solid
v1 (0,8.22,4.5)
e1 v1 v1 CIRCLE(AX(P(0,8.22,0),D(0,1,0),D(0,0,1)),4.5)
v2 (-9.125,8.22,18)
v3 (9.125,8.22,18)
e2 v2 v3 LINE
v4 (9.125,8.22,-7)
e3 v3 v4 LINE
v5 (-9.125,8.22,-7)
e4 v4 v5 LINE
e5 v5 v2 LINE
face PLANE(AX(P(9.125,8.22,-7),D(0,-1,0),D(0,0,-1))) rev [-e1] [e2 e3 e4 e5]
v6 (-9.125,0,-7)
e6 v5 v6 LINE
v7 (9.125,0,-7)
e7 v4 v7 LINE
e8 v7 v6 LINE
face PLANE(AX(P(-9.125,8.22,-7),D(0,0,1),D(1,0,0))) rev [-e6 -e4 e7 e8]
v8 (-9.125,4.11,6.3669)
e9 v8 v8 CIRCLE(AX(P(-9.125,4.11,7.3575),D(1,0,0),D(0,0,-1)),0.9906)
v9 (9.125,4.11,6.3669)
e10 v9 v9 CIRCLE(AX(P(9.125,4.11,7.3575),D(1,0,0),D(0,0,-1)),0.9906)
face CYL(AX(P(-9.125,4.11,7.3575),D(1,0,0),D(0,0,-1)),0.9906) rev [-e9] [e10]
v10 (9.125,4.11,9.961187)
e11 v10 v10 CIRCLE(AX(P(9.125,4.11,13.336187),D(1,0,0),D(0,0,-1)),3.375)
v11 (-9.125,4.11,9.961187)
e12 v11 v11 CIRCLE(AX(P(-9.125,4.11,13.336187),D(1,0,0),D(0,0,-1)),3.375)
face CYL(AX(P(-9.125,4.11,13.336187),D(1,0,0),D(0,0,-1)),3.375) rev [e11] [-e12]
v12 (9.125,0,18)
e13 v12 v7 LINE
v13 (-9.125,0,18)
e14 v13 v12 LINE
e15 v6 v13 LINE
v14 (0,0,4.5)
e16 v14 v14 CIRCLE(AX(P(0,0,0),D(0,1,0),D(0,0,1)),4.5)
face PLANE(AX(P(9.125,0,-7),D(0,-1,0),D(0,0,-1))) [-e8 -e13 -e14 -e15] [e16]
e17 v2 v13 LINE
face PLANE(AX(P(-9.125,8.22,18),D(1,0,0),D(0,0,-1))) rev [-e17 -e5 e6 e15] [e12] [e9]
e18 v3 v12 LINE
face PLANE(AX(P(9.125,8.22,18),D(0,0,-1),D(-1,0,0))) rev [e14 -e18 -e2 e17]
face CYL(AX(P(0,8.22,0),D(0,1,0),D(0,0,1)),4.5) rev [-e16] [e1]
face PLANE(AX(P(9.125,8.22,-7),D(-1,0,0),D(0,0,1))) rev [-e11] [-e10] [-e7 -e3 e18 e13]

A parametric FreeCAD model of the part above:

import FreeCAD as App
import Part
import Sketcher
Q = App.Units.Quantity


def add_polygon(sketch, points):
    """Adds a closed chain of lines whose ends are joined by coincident constraints."""
    first, n = sketch.GeometryCount, len(points)
    for a, b in zip(points, points[1:] + points[:1]):
        sketch.addGeometry(Part.LineSegment(App.Vector(*a, 0), App.Vector(*b, 0)), False)
    for i in range(n):
        sketch.addConstraint(Sketcher.Constraint("Coincident", first + i, 2, first + (i + 1) % n, 1))

doc = App.newDocument("Part")
params = doc.addObject("Spreadsheet::Sheet", "Params")
for row, (alias, value) in enumerate([
    ("sketch1_height", "25 mm"),
    ("sketch1_width", "18.25 mm"),
    ("pad1_length", "8.22 mm"),
    ("sketch2_diameter", "9 mm"),
    ("hole_diameter", "9 mm"),
    ("sketch3_diameter", "6.75 mm"),
], start=1):
    params.set(f"A{row}", alias)
    params.set(f"B{row}", "=" + value)
    params.setAlias(f"B{row}", alias)

body = doc.addObject("PartDesign::Body", "Body")

# Sketch on XZ plane
sketch1 = body.newObject("Sketcher::SketchObject", "Sketch")
sketch1.AttachmentSupport = (doc.getObject("XZ_Plane"), [""])
sketch1.MapMode = "FlatFace"
add_polygon(sketch1, [(-9, -7), (-9, 18), (9, 18), (9, -7)])  # lines 0-3
sketch1.addConstraint([
    Sketcher.Constraint("Vertical", 0),
    Sketcher.Constraint("Horizontal", 1),
    Sketcher.Constraint("Vertical", 2),
    Sketcher.Constraint("Horizontal", 3),
    Sketcher.Constraint("DistanceY", 0, 1, 0, 2, Q("25 mm")),
    Sketcher.Constraint("DistanceY", -1, 1, 0, 2, Q("18 mm")),
    Sketcher.Constraint("DistanceX", 1, 1, 1, 2, Q("18.25 mm")),
    Sketcher.Constraint("DistanceX", 0, 2, -1, 1, Q("9.125 mm")),
])
sketch1.setExpression("Constraints[8]", "Params.sketch1_height")
sketch1.setExpression("Constraints[10]", "Params.sketch1_width")
pad1 = body.newObject("PartDesign::Pad", "Pad")
pad1.Profile = sketch1
pad1.setExpression("Length", "Params.pad1_length")
pad1.Reversed = True

# Sketch on XZ plane
sketch2 = body.newObject("Sketcher::SketchObject", "Sketch001")
sketch2.AttachmentSupport = (doc.getObject("XZ_Plane"), [""])
sketch2.MapMode = "FlatFace"
sketch2.AttachmentOffset = App.Placement(App.Vector(0, 0, -8.22), App.Rotation())
sketch2.addGeometry(Part.Circle(App.Vector(0, 0, 0), App.Vector(0, 0, 1), 4.5), False)
sketch2.addConstraint([
    Sketcher.Constraint("Coincident", 0, 3, -1, 1),
    Sketcher.Constraint("Diameter", 0, Q("9 mm")),
])
sketch2.setExpression("Constraints[1]", "Params.sketch2_diameter")
doc.recompute()
hole = body.newObject("PartDesign::Hole", "Hole")
hole.Profile = sketch2
hole.ThreadType = "None"
hole.setExpression("Diameter", "Params.hole_diameter")
hole.DepthType = "ThroughAll"
hole.Reversed = True

# Sketch on YZ plane
sketch3 = body.newObject("Sketcher::SketchObject", "Sketch002")
sketch3.AttachmentSupport = (doc.getObject("YZ_Plane"), [""])
sketch3.MapMode = "FlatFace"
sketch3.AttachmentOffset = App.Placement(App.Vector(0, 0, 9.125), App.Rotation())
sketch3.addGeometry([
    Part.Circle(App.Vector(4.1, 13.3, 0), App.Vector(0, 0, 1), 3.4),
    Part.Circle(App.Vector(4.1, 7.4, 0), App.Vector(0, 0, 1), 1),
], False)
sketch3.addConstraint([
    Sketcher.Constraint("Vertical", 0, 3, 1, 3),
    Sketcher.Constraint("Diameter", 0, Q("6.75 mm")),
    Sketcher.Constraint("Diameter", 1, Q("1.9812 mm")),
    Sketcher.Constraint("DistanceX", -1, 1, 0, 3, Q("4.11 mm")),
    Sketcher.Constraint("DistanceY", -1, 1, 1, 3, Q("7.3575 mm")),
    Sketcher.Constraint("DistanceY", -1, 1, 0, 3, Q("13.336187 mm")),
])
sketch3.setExpression("Constraints[1]", "Params.sketch3_diameter")
pocket1 = body.newObject("PartDesign::Pocket", "Pocket")
pocket1.Profile = sketch3
pocket1.Type = "ThroughAll"

doc.recompute()
